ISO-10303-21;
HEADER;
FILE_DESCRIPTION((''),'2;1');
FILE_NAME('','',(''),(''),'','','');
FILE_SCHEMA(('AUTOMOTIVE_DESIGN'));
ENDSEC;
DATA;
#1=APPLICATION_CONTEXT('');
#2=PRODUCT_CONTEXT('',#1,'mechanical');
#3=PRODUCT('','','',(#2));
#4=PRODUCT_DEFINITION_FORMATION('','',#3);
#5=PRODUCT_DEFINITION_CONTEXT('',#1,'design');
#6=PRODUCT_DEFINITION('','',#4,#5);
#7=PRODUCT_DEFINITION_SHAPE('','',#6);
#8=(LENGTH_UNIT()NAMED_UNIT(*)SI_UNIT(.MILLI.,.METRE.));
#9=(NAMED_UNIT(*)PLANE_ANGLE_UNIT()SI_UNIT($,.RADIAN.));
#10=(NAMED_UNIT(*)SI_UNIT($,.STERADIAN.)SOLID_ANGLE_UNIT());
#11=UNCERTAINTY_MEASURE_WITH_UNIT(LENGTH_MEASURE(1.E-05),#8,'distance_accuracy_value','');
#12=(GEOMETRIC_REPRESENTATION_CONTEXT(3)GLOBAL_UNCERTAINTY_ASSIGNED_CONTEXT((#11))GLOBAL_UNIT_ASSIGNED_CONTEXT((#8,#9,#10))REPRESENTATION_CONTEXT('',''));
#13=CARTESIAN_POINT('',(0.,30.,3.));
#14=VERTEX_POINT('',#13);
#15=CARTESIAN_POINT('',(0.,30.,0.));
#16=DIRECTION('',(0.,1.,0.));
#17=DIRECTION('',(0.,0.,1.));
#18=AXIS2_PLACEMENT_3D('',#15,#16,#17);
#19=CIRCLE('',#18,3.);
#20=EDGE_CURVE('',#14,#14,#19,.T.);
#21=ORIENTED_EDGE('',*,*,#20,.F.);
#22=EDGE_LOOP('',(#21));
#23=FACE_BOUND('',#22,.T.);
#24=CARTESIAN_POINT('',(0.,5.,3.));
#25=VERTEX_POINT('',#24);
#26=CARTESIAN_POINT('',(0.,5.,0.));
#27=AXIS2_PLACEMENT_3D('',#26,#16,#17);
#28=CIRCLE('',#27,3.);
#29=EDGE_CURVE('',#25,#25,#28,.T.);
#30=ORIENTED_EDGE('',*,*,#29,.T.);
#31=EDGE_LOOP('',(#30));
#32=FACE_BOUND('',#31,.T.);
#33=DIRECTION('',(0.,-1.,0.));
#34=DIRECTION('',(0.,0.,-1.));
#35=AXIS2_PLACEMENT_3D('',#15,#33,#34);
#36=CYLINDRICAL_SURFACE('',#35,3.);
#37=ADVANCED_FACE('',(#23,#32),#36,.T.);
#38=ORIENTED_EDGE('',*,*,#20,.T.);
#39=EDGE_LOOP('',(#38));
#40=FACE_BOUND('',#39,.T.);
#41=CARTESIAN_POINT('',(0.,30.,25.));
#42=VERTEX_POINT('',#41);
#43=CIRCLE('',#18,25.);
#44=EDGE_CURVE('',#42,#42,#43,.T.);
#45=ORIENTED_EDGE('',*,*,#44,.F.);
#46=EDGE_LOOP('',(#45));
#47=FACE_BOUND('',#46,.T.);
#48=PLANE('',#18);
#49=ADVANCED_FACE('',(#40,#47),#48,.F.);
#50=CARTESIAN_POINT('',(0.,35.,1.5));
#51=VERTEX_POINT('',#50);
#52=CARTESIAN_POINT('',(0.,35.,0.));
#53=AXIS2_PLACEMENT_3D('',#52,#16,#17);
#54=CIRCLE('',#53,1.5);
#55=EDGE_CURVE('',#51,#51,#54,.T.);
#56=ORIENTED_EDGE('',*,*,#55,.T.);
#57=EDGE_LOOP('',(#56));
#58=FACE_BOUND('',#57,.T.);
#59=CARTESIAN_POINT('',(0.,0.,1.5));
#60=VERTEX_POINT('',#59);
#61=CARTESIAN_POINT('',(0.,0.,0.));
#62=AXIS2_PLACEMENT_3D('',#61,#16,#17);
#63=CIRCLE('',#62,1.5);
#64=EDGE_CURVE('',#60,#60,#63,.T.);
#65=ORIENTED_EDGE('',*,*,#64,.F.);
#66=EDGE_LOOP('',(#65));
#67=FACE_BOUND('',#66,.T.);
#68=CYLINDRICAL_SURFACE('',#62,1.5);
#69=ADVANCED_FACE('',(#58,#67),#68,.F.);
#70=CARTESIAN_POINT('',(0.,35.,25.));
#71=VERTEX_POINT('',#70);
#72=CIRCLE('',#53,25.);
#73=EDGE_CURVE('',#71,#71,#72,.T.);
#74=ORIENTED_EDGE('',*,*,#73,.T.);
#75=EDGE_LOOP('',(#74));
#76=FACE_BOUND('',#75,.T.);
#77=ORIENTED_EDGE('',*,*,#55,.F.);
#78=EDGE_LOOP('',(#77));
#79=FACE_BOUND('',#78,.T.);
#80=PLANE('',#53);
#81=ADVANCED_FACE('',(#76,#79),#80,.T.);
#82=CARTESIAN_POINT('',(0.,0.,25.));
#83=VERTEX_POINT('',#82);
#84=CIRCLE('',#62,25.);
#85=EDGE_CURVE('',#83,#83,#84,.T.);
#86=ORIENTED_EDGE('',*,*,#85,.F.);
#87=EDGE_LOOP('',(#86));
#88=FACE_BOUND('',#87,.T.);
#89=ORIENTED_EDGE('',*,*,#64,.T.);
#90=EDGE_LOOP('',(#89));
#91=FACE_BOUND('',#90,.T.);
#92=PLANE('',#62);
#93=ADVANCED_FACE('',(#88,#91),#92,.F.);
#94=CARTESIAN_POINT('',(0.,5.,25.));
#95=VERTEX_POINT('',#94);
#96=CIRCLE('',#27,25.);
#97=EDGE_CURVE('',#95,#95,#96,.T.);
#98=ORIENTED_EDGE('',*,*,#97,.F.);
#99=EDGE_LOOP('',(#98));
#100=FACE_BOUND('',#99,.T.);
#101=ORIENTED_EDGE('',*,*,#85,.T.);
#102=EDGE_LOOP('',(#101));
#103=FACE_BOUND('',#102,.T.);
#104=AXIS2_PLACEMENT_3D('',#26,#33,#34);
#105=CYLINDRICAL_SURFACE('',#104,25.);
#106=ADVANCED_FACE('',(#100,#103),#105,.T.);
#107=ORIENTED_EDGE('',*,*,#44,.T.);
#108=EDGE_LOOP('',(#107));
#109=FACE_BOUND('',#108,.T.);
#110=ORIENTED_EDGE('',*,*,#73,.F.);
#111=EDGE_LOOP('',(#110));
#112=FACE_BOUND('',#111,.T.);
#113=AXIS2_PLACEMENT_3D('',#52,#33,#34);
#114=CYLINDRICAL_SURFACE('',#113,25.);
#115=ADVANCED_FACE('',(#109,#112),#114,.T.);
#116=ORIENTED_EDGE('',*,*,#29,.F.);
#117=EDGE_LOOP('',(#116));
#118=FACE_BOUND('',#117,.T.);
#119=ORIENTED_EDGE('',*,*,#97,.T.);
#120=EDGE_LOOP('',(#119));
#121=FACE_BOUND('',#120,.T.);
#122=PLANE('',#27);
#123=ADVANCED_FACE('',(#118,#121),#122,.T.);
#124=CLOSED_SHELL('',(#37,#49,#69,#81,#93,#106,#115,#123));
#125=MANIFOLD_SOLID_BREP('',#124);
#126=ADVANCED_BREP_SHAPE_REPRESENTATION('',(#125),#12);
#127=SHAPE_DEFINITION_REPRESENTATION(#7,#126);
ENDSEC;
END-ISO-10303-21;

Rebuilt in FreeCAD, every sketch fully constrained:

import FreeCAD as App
import Part
import Sketcher

doc = App.newDocument("Part")
body = doc.addObject("PartDesign::Body", "Body")

sketch1 = doc.addObject("Sketcher::SketchObject", "Sketch")
body.addObject(sketch1)
sketch1.AttachmentSupport = (doc.XZ_Plane, [""])
sketch1.MapMode = "FlatFace"
sketch1.addGeometry(Part.Circle(App.Vector(0, 0, 0), App.Vector(0, 0, 1), 25), False)
sketch1.addConstraint([
    Sketcher.Constraint("Coincident", 0, 3, -1, 1),
    Sketcher.Constraint("Diameter", 0, 50.0),
])
pad1 = doc.addObject("PartDesign::Pad", "Pad")
body.addObject(pad1)
pad1.Profile = sketch1
pad1.Length = 5
pad1.Reversed = True

sketch2 = doc.addObject("Sketcher::SketchObject", "Sketch001")
body.addObject(sketch2)
sketch2.AttachmentSupport = (doc.XZ_Plane, [""])
sketch2.MapMode = "FlatFace"
sketch2.AttachmentOffset = App.Placement(App.Vector(0, 0, -5), App.Rotation())
sketch2.addGeometry(Part.Circle(App.Vector(0, 0, 0), App.Vector(0, 0, 1), 3), False)
sketch2.addConstraint([
    Sketcher.Constraint("Coincident", 0, 3, -1, 1),
    Sketcher.Constraint("Diameter", 0, 6.0),
])
pad2 = doc.addObject("PartDesign::Pad", "Pad001")
body.addObject(pad2)
pad2.Profile = sketch2
pad2.Length = 25
pad2.Reversed = True

sketch3 = doc.addObject("Sketcher::SketchObject", "Sketch002")
body.addObject(sketch3)
sketch3.AttachmentSupport = (doc.XZ_Plane, [""])
sketch3.MapMode = "FlatFace"
sketch3.AttachmentOffset = App.Placement(App.Vector(0, 0, -30), App.Rotation())
sketch3.addGeometry(Part.Circle(App.Vector(0, 0, 0), App.Vector(0, 0, 1), 25), False)
sketch3.addConstraint([
    Sketcher.Constraint("Coincident", 0, 3, -1, 1),
    Sketcher.Constraint("Diameter", 0, 50.0),
])
pad3 = doc.addObject("PartDesign::Pad", "Pad002")
body.addObject(pad3)
pad3.Profile = sketch3
pad3.Length = 5
pad3.Reversed = True

sketch4 = doc.addObject("Sketcher::SketchObject", "Sketch003")
body.addObject(sketch4)
sketch4.AttachmentSupport = (doc.XZ_Plane, [""])
sketch4.MapMode = "FlatFace"
sketch4.AttachmentOffset = App.Placement(App.Vector(0, 0, -35), App.Rotation())
sketch4.addGeometry(Part.Circle(App.Vector(0, 0, 0), App.Vector(0, 0, 1), 1.5), False)
sketch4.addConstraint([
    Sketcher.Constraint("Coincident", 0, 3, -1, 1),
    Sketcher.Constraint("Diameter", 0, 3.0),
])
pocket1 = doc.addObject("PartDesign::Pocket", "Pocket")
body.addObject(pocket1)
pocket1.Profile = sketch4
pocket1.Type = "ThroughAll"
pocket1.Reversed = True

doc.recompute()
